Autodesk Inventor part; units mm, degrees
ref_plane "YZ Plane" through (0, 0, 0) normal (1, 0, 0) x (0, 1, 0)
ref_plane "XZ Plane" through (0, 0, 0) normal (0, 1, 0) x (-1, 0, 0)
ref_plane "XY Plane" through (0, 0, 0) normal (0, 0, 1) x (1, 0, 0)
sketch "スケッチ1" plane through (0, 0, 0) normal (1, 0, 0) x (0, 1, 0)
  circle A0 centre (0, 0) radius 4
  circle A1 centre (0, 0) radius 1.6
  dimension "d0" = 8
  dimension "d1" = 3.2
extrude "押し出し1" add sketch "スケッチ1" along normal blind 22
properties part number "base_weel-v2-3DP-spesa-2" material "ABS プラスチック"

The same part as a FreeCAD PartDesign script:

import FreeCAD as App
import Part
import Sketcher
Q = App.Units.Quantity

doc = App.newDocument("Part")
body = doc.addObject("PartDesign::Body", "Body")

# Sketch on YZ plane
sketch1 = body.newObject("Sketcher::SketchObject", "Sketch")
sketch1.AttachmentSupport = (doc.getObject("YZ_Plane"), [""])
sketch1.MapMode = "FlatFace"
sketch1.addGeometry([
    Part.Circle(App.Vector(0, 0, 0), App.Vector(0, 0, 1), 4),
    Part.Circle(App.Vector(0, 0, 0), App.Vector(0, 0, 1), 1.6),
], False)
sketch1.addConstraint([
    Sketcher.Constraint("Coincident", 0, 3, -1, 1),
    Sketcher.Constraint("Coincident", 1, 3, -1, 1),
    Sketcher.Constraint("Diameter", 0, Q("8 mm")),
    Sketcher.Constraint("Diameter", 1, Q("3.2 mm")),
])
pad1 = body.newObject("PartDesign::Pad", "Pad")
pad1.Profile = sketch1
pad1.Length = 22

doc.recompute()
